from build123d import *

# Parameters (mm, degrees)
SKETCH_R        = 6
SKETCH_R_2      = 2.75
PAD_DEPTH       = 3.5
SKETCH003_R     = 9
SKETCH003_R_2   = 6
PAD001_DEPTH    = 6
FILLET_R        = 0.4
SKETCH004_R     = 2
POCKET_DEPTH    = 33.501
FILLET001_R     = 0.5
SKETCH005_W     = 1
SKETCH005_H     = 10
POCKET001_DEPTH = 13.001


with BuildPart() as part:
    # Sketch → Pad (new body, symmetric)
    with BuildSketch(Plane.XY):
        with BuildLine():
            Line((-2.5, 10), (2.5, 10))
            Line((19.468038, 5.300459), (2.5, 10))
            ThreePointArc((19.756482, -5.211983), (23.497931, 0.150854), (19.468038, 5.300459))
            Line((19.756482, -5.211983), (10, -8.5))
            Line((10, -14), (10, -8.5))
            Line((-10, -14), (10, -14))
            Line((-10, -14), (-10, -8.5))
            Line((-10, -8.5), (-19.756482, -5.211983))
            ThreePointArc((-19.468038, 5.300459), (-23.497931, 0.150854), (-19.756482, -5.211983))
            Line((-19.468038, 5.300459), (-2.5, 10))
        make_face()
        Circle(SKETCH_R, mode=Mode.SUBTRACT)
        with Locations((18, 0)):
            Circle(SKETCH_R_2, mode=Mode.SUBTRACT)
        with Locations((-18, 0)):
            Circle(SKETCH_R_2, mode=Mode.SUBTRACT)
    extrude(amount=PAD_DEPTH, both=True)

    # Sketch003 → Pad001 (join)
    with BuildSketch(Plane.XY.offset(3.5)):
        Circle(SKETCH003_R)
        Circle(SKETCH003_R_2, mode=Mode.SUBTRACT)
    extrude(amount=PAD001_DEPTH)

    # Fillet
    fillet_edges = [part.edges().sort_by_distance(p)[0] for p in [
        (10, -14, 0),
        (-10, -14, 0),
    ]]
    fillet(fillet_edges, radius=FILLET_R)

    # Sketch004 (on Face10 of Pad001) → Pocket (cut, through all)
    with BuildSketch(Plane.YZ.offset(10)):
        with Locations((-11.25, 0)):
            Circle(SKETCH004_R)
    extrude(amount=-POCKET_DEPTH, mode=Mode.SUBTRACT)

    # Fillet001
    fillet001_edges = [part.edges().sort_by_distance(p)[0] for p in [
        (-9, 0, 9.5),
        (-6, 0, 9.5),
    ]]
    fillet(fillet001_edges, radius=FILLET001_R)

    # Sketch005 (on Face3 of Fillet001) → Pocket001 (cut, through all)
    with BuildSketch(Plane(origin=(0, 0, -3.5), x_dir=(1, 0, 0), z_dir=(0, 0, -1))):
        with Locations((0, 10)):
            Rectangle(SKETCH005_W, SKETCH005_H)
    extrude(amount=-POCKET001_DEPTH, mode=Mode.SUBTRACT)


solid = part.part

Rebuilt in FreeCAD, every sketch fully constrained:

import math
import FreeCAD as App
import Part
import Sketcher
from FreeCAD import Vector
Q = App.Units.Quantity


def edges_at(feature, points):
    """Names of the edges that pass closest to the given points."""
    edges = feature.Shape.Edges
    near = lambda p: min(range(len(edges)), key=lambda i: edges[i].distToShape(Part.Vertex(*p))[0])
    return sorted({f"Edge{near(p) + 1}" for p in points})

doc = App.newDocument("Part")
body = doc.addObject("PartDesign::Body", "Body")

sketch1 = body.newObject("Sketcher::SketchObject", "Sketch")
sketch1.AttachmentSupport = (doc.getObject("XY_Plane"), [""])
sketch1.MapMode = "FlatFace"
sketch1.addGeometry([
    Part.LineSegment(Vector(2.5, 10, 0), Vector(-2.5, 10, 0)),
    Part.LineSegment(Vector(-2.5, 10, 0), Vector(-19.5, 5.3, 0)),
    Part.ArcOfCircle(Part.Circle(Vector(-18, 0, 0), Vector(0, 0, 1), 5.5), math.radians(105), math.radians(251)),
    Part.LineSegment(Vector(-19.8, -5.2, 0), Vector(-10, -8.5, 0)),
    Part.LineSegment(Vector(-10, -8.5, 0), Vector(-10, -14, 0)),
    Part.LineSegment(Vector(-10, -14, 0), Vector(10, -14, 0)),
    Part.LineSegment(Vector(10, -14, 0), Vector(10, -8.5, 0)),
    Part.LineSegment(Vector(10, -8.5, 0), Vector(19.8, -5.2, 0)),
    Part.ArcOfCircle(Part.Circle(Vector(18, 0, 0), Vector(0, 0, 1), 5.5), math.radians(-71), math.radians(75)),
    Part.LineSegment(Vector(19.5, 5.3, 0), Vector(2.5, 10, 0)),
    Part.Circle(Vector(18, 0, 0), Vector(0, 0, 1), 2.8),
    Part.Circle(Vector(0, 0, 0), Vector(0, 0, 1), 6),
    Part.Circle(Vector(-18, 0, 0), Vector(0, 0, 1), 2.8),
], False)
sketch1.addConstraint([
    Sketcher.Constraint("Coincident", 0, 2, 1, 1),
    Sketcher.Constraint("Tangent", 1, 2, 2, 1),
    Sketcher.Constraint("Tangent", 2, 2, 3, 1),
    Sketcher.Constraint("Coincident", 3, 2, 4, 1),
    Sketcher.Constraint("Coincident", 4, 2, 5, 1),
    Sketcher.Constraint("Coincident", 5, 2, 6, 1),
    Sketcher.Constraint("Coincident", 6, 2, 7, 1),
    Sketcher.Constraint("Tangent", 7, 2, 8, 1),
    Sketcher.Constraint("Tangent", 8, 2, 9, 1),
    Sketcher.Constraint("Coincident", 9, 2, 0, 1),
    Sketcher.Constraint("Horizontal", 0),
    Sketcher.Constraint("Vertical", 4),
    Sketcher.Constraint("Horizontal", 5),
    Sketcher.Constraint("Vertical", 6),
    Sketcher.Constraint("Coincident", 11, 3, -1, 1),
    Sketcher.Constraint("Coincident", 10, 3, 8, 3),
    Sketcher.Constraint("Coincident", 12, 3, 2, 3),
    Sketcher.Constraint("Equal", 2, 8),
    Sketcher.Constraint("Equal", 10, 12),
    Sketcher.Constraint("Symmetric", 2, 3, 8, 3, -1, 1),
    Sketcher.Constraint("Symmetric", 3, 2, 6, 2, -2),
    Sketcher.Constraint("Symmetric", 1, 2, 8, 2, -2),
    Sketcher.Constraint("Diameter", 11, Q("12 mm")),
    Sketcher.Constraint("Diameter", 10, Q("5.5 mm")),
    Sketcher.Constraint("Radius", 2, Q("5.5 mm")),
    Sketcher.Constraint("DistanceX", 0, 2, 0, 1, Q("5 mm")),
    Sketcher.Constraint("DistanceX", 5, 1, 5, 2, Q("20 mm")),
    Sketcher.Constraint("DistanceY", 4, 2, 4, 1, Q("5.5 mm")),
    Sketcher.Constraint("DistanceX", 2, 3, -1, 1, Q("18 mm")),
    Sketcher.Constraint("DistanceY", -1, 1, 0, 2, Q("10 mm")),
    Sketcher.Constraint("DistanceY", 4, 2, -1, 1, Q("14 mm")),
])
pad1 = body.newObject("PartDesign::Pad", "Pad")
pad1.Profile = sketch1
pad1.Length = 7
pad1.Midplane = True

sketch2 = body.newObject("Sketcher::SketchObject", "Sketch001")
sketch2.AttachmentSupport = (doc.getObject("XY_Plane"), [""])
sketch2.MapMode = "FlatFace"
sketch2.AttachmentOffset = App.Placement(Vector(0, 0, 3.5), App.Rotation())
sketch2.addGeometry([
    Part.Circle(Vector(0, 0, 0), Vector(0, 0, 1), 9),
    Part.Circle(Vector(0, 0, 0), Vector(0, 0, 1), 6),
], False)
sketch2.addConstraint([
    Sketcher.Constraint("Coincident", 0, 3, -1, 1),
    Sketcher.Constraint("Coincident", 1, 3, -1, 1),
    Sketcher.Constraint("Diameter", 0, Q("18 mm")),
    Sketcher.Constraint("Diameter", 1, Q("12 mm")),
])
pad2 = body.newObject("PartDesign::Pad", "Pad001")
pad2.Profile = sketch2
pad2.Length = 6
doc.recompute()

fillet = body.newObject("PartDesign::Fillet", "Fillet")
fillet.Base = (pad2, edges_at(pad2, [(10, -14, 0), (-10, -14, 0)]))
fillet.Radius = 0.4

sketch3 = body.newObject("Sketcher::SketchObject", "Sketch002")
sketch3.AttachmentSupport = (doc.getObject("YZ_Plane"), [""])
sketch3.MapMode = "FlatFace"
sketch3.AttachmentOffset = App.Placement(Vector(0, 0, 10), App.Rotation())
sketch3.addGeometry(Part.Circle(Vector(-11.2, 0, 0), Vector(0, 0, 1), 2), False)
sketch3.addConstraint([
    Sketcher.Constraint("PointOnObject", 0, 3, -1),
    Sketcher.Constraint("Diameter", 0, Q("4 mm")),
    Sketcher.Constraint("DistanceX", 0, 3, -1, 1, Q("11.25 mm")),
])
pocket1 = body.newObject("PartDesign::Pocket", "Pocket")
pocket1.Profile = sketch3
pocket1.Type = "ThroughAll"
doc.recompute()

fillet2 = body.newObject("PartDesign::Fillet", "Fillet001")
fillet2.Base = (pocket1, edges_at(pocket1, [(-9, 0, 9.5), (-6, 0, 9.5)]))
fillet2.Radius = 0.5

sketch4 = body.newObject("Sketcher::SketchObject", "Sketch003")
sketch4.AttachmentSupport = (doc.getObject("XY_Plane"), [""])
sketch4.MapMode = "FlatFace"
sketch4.AttachmentOffset = App.Placement(Vector(0, 0, -3.5), App.Rotation())
sketch4.addGeometry([
    Part.LineSegment(Vector(-0.5, -15, 0), Vector(-0.5, -5, 0)),
    Part.LineSegment(Vector(-0.5, -5, 0), Vector(0.5, -5, 0)),
    Part.LineSegment(Vector(0.5, -5, 0), Vector(0.5, -15, 0)),
    Part.LineSegment(Vector(0.5, -15, 0), Vector(-0.5, -15, 0)),
], False)
sketch4.addConstraint([
    Sketcher.Constraint("Coincident", 0, 2, 1, 1),
    Sketcher.Constraint("Coincident", 1, 2, 2, 1),
    Sketcher.Constraint("Coincident", 2, 2, 3, 1),
    Sketcher.Constraint("Coincident", 3, 2, 0, 1),
    Sketcher.Constraint("Vertical", 0),
    Sketcher.Constraint("Horizontal", 1),
    Sketcher.Constraint("Vertical", 2),
    Sketcher.Constraint("Horizontal", 3),
    Sketcher.Constraint("DistanceX", 1, 1, 1, 2, Q("1 mm")),
    Sketcher.Constraint("DistanceY", 0, 1, 0, 2, Q("10 mm")),
    Sketcher.Constraint("DistanceY", 0, 2, -1, 1, Q("5 mm")),
    Sketcher.Constraint("DistanceX", 0, 2, -1, 1, Q("0.5 mm")),
])
pocket2 = body.newObject("PartDesign::Pocket", "Pocket001")
pocket2.Profile = sketch4
pocket2.Type = "ThroughAll"
pocket2.Reversed = True

doc.recompute()
